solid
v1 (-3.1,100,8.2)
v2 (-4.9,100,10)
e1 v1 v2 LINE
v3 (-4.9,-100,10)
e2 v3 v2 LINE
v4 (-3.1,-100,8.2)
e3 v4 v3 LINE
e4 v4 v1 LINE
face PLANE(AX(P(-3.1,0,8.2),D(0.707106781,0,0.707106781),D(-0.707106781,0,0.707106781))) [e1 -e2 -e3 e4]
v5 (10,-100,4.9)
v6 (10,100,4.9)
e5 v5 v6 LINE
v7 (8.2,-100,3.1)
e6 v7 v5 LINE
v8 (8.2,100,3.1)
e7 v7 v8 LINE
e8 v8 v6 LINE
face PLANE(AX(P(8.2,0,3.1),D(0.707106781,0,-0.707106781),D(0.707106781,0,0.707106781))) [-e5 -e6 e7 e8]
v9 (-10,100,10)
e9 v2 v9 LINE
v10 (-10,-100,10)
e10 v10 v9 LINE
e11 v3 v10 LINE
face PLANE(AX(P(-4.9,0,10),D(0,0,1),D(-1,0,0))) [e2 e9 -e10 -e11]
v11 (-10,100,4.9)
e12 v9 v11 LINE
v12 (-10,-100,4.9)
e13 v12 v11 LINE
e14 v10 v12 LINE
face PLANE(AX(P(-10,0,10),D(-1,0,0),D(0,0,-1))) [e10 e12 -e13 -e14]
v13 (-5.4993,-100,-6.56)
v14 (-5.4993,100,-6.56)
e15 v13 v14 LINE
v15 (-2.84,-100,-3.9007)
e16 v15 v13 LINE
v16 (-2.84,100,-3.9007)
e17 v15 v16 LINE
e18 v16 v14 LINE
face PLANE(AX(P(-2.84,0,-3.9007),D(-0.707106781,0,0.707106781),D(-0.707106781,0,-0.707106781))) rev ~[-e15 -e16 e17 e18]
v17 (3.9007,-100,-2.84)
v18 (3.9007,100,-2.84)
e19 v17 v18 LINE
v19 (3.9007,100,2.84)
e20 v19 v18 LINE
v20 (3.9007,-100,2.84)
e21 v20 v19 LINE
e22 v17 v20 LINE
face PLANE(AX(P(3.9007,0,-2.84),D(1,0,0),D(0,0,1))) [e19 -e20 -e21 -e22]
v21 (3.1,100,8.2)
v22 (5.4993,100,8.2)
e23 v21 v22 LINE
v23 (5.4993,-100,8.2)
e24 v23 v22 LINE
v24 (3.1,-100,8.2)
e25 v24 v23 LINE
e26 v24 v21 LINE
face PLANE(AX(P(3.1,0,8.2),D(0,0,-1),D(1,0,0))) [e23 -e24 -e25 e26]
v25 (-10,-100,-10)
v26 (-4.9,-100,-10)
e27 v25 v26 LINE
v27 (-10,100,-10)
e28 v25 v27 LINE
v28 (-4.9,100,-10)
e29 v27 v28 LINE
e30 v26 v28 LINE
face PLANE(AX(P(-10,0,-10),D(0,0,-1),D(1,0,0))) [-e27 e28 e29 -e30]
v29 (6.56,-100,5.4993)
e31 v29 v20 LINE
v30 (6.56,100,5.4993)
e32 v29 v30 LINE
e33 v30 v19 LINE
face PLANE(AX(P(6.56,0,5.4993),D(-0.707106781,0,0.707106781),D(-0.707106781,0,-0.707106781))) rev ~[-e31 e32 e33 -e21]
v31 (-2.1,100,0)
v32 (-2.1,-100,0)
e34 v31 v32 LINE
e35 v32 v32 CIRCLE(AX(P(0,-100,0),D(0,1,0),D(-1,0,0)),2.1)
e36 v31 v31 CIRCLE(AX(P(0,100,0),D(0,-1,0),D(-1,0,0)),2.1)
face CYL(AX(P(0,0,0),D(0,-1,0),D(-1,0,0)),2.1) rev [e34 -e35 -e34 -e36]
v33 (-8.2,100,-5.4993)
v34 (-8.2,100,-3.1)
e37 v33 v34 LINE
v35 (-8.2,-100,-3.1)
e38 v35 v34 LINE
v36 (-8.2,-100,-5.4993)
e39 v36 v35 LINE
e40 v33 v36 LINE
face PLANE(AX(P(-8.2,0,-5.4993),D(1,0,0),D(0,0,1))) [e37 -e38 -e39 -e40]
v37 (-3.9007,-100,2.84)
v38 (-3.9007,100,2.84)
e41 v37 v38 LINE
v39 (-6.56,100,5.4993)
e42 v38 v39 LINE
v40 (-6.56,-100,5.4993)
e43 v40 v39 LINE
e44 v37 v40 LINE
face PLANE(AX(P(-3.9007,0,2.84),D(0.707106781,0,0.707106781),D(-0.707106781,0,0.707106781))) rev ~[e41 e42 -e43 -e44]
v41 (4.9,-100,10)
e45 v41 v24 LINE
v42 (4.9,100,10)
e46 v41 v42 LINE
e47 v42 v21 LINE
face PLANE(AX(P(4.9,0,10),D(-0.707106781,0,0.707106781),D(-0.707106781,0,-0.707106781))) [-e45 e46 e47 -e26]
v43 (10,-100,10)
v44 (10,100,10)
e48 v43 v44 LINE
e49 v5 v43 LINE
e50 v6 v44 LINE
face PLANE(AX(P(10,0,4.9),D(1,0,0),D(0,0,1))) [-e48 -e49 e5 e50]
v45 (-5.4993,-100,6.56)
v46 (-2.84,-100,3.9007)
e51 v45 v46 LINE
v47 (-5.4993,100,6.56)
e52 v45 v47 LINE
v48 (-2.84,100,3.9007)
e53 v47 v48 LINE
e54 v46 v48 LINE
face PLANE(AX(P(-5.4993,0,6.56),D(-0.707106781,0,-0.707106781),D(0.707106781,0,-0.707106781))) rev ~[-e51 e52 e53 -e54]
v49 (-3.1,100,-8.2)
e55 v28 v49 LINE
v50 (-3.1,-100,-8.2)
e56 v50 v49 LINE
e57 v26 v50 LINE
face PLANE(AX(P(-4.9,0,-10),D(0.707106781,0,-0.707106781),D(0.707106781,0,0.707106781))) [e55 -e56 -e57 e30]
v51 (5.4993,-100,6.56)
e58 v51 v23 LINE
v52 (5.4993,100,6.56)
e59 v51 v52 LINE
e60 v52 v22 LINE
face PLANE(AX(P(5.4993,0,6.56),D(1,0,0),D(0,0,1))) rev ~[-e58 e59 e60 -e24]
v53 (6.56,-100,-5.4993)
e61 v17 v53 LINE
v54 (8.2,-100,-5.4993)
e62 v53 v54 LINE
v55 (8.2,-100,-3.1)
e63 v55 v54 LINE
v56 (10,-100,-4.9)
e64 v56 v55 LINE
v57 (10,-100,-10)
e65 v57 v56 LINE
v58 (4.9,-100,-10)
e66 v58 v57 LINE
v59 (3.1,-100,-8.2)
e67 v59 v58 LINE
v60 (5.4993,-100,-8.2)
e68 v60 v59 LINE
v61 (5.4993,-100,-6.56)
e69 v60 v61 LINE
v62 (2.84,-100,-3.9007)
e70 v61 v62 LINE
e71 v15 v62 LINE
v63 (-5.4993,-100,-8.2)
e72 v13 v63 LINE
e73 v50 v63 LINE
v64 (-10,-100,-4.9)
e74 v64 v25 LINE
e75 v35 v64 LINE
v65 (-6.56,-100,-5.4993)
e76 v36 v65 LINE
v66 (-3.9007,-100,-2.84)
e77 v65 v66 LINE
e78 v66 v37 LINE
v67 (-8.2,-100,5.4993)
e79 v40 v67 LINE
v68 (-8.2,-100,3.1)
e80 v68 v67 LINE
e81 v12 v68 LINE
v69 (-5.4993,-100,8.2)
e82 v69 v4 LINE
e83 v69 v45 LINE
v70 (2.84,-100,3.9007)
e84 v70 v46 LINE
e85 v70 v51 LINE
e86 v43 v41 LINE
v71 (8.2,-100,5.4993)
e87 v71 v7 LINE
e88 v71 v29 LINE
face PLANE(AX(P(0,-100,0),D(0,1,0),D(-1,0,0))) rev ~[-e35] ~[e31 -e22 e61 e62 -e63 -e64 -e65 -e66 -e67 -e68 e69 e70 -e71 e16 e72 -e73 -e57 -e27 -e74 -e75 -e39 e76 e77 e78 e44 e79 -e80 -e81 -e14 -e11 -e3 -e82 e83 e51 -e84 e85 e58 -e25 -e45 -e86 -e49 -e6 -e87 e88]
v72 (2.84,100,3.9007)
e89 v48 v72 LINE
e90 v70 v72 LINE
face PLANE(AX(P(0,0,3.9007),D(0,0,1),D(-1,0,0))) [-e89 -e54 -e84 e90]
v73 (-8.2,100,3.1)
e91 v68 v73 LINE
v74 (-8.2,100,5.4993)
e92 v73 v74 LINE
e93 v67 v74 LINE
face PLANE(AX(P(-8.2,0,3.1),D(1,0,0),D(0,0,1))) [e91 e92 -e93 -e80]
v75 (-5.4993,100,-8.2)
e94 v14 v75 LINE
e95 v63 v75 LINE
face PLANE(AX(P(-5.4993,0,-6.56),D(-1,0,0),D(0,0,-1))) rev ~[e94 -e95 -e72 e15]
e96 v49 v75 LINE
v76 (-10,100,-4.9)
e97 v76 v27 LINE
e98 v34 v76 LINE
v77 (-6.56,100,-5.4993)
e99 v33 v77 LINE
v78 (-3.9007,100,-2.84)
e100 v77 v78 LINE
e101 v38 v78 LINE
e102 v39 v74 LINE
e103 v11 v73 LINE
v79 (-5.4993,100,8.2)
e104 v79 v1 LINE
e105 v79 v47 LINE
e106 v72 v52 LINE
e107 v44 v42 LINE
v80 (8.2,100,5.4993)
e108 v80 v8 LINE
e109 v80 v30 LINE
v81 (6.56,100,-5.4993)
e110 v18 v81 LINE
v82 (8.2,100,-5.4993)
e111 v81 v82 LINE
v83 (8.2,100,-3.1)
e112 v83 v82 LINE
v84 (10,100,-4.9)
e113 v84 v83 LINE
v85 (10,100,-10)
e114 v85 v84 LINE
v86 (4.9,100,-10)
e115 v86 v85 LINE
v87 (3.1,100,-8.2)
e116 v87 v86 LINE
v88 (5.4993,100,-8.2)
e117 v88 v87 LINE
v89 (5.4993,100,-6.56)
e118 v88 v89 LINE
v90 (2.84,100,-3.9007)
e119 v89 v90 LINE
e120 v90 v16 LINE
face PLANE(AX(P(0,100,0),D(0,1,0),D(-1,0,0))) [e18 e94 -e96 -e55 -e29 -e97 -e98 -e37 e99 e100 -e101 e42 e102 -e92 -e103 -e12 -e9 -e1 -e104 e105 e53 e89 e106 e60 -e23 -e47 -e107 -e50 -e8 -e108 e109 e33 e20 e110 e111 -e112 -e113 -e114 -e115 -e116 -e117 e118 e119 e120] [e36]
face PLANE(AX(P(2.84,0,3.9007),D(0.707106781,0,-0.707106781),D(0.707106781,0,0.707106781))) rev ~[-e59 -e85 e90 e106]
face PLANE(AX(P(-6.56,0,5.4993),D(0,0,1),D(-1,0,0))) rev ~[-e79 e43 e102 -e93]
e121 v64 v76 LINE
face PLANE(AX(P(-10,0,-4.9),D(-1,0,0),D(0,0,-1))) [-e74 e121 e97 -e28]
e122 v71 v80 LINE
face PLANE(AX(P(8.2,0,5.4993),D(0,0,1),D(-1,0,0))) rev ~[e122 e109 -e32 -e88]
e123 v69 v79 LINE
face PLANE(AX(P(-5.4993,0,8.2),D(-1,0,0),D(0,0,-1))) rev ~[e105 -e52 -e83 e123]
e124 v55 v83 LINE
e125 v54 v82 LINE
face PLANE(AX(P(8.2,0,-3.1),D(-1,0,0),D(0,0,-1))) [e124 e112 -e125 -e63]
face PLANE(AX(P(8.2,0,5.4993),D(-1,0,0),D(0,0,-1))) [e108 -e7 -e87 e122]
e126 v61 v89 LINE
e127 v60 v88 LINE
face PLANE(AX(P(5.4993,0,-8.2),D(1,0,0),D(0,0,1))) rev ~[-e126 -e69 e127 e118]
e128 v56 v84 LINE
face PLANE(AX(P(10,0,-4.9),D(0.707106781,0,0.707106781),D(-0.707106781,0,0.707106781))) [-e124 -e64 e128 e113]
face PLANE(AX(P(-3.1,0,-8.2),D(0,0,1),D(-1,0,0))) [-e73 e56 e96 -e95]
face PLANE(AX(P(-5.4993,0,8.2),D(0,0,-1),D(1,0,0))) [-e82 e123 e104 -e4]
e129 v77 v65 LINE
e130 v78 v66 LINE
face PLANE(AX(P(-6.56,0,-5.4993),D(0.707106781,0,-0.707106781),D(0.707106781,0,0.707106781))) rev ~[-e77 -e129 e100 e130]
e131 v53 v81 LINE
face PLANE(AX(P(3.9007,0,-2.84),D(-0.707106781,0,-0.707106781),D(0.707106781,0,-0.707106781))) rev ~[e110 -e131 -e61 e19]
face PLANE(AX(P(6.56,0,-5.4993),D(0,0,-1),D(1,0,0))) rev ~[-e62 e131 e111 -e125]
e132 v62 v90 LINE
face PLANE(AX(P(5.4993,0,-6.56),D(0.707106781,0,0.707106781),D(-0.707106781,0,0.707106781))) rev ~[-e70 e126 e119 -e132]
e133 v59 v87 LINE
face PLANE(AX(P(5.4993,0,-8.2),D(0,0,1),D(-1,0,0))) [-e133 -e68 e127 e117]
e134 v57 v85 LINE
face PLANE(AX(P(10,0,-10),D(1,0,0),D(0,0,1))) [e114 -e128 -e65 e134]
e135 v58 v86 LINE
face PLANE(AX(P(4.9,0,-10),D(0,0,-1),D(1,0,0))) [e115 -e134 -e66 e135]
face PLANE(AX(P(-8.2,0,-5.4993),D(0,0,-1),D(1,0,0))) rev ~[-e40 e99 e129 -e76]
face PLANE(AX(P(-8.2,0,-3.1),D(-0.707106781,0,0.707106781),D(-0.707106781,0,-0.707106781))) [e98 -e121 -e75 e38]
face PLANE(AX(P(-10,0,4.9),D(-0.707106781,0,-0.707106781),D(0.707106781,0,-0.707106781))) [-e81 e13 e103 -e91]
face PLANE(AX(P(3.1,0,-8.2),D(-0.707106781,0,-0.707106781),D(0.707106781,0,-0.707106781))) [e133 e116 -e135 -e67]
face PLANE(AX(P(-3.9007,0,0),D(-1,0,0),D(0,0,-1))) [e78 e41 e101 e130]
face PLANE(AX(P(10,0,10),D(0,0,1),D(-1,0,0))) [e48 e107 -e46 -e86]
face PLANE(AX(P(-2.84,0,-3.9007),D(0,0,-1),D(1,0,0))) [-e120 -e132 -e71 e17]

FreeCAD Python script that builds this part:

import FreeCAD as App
import Part
import Sketcher

V = App.Vector
Q = App.Units.Quantity

doc = App.newDocument("Part")
body = doc.addObject("PartDesign::Body", "Body")

sketch1 = doc.addObject("Sketcher::SketchObject", "Sketch")
body.addObject(sketch1)
sketch1.AttachmentSupport = (doc.XZ_Plane, [""])
sketch1.MapMode = "FlatFace"
sketch1.addGeometry(Part.LineSegment(V(-3.9, -2.8, 0), V(-3.9, 2.8, 0)), False)
sketch1.addGeometry(Part.LineSegment(V(-3.9, 2.8, 0), V(-6.6, 5.5, 0)), False)
sketch1.addGeometry(Part.LineSegment(V(-6.6, 5.5, 0), V(-8.2, 5.5, 0)), False)
sketch1.addGeometry(Part.LineSegment(V(-8.2, 5.5, 0), V(-8.2, 3.1, 0)), False)
sketch1.addGeometry(Part.LineSegment(V(-8.2, 3.1, 0), V(-10, 4.9, 0)), False)
sketch1.addGeometry(Part.LineSegment(V(-10, 4.9, 0), V(-10, 10, 0)), False)
sketch1.addGeometry(Part.LineSegment(V(-10, 10, 0), V(-4.9, 10, 0)), False)
sketch1.addGeometry(Part.LineSegment(V(-4.9, 10, 0), V(-3.1, 8.2, 0)), False)
sketch1.addGeometry(Part.LineSegment(V(-3.1, 8.2, 0), V(-5.5, 8.2, 0)), False)
sketch1.addGeometry(Part.LineSegment(V(-5.5, 8.2, 0), V(-5.5, 6.6, 0)), False)
sketch1.addGeometry(Part.LineSegment(V(-5.5, 6.6, 0), V(-2.8, 3.9, 0)), False)
sketch1.addGeometry(Part.LineSegment(V(-2.8, 3.9, 0), V(2.8, 3.9, 0)), False)
sketch1.addGeometry(Part.LineSegment(V(2.8, 3.9, 0), V(5.5, 6.6, 0)), False)
sketch1.addGeometry(Part.LineSegment(V(5.5, 6.6, 0), V(5.5, 8.2, 0)), False)
sketch1.addGeometry(Part.LineSegment(V(5.5, 8.2, 0), V(3.1, 8.2, 0)), False)
sketch1.addGeometry(Part.LineSegment(V(3.1, 8.2, 0), V(4.9, 10, 0)), False)
sketch1.addGeometry(Part.LineSegment(V(4.9, 10, 0), V(10, 10, 0)), False)
sketch1.addGeometry(Part.LineSegment(V(10, 10, 0), V(10, 4.9, 0)), False)
sketch1.addGeometry(Part.LineSegment(V(10, 4.9, 0), V(8.2, 3.1, 0)), False)
sketch1.addGeometry(Part.LineSegment(V(8.2, 3.1, 0), V(8.2, 5.5, 0)), False)
sketch1.addGeometry(Part.LineSegment(V(8.2, 5.5, 0), V(6.6, 5.5, 0)), False)
sketch1.addGeometry(Part.LineSegment(V(6.6, 5.5, 0), V(3.9, 2.8, 0)), False)
sketch1.addGeometry(Part.LineSegment(V(3.9, 2.8, 0), V(3.9, -2.8, 0)), False)
sketch1.addGeometry(Part.LineSegment(V(3.9, -2.8, 0), V(6.6, -5.5, 0)), False)
sketch1.addGeometry(Part.LineSegment(V(6.6, -5.5, 0), V(8.2, -5.5, 0)), False)
sketch1.addGeometry(Part.LineSegment(V(8.2, -5.5, 0), V(8.2, -3.1, 0)), False)
sketch1.addGeometry(Part.LineSegment(V(8.2, -3.1, 0), V(10, -4.9, 0)), False)
sketch1.addGeometry(Part.LineSegment(V(10, -4.9, 0), V(10, -10, 0)), False)
sketch1.addGeometry(Part.LineSegment(V(10, -10, 0), V(4.9, -10, 0)), False)
sketch1.addGeometry(Part.LineSegment(V(4.9, -10, 0), V(3.1, -8.2, 0)), False)
sketch1.addGeometry(Part.LineSegment(V(3.1, -8.2, 0), V(5.5, -8.2, 0)), False)
sketch1.addGeometry(Part.LineSegment(V(5.5, -8.2, 0), V(5.5, -6.6, 0)), False)
sketch1.addGeometry(Part.LineSegment(V(5.5, -6.6, 0), V(2.8, -3.9, 0)), False)
sketch1.addGeometry(Part.LineSegment(V(2.8, -3.9, 0), V(-2.8, -3.9, 0)), False)
sketch1.addGeometry(Part.LineSegment(V(-2.8, -3.9, 0), V(-5.5, -6.6, 0)), False)
sketch1.addGeometry(Part.LineSegment(V(-5.5, -6.6, 0), V(-5.5, -8.2, 0)), False)
sketch1.addGeometry(Part.LineSegment(V(-5.5, -8.2, 0), V(-3.1, -8.2, 0)), False)
sketch1.addGeometry(Part.LineSegment(V(-3.1, -8.2, 0), V(-4.9, -10, 0)), False)
sketch1.addGeometry(Part.LineSegment(V(-4.9, -10, 0), V(-10, -10, 0)), False)
sketch1.addGeometry(Part.LineSegment(V(-10, -10, 0), V(-10, -4.9, 0)), False)
sketch1.addGeometry(Part.LineSegment(V(-10, -4.9, 0), V(-8.2, -3.1, 0)), False)
sketch1.addGeometry(Part.LineSegment(V(-8.2, -3.1, 0), V(-8.2, -5.5, 0)), False)
sketch1.addGeometry(Part.LineSegment(V(-8.2, -5.5, 0), V(-6.6, -5.5, 0)), False)
sketch1.addGeometry(Part.LineSegment(V(-6.6, -5.5, 0), V(-3.9, -2.8, 0)), False)
sketch1.addGeometry(Part.Circle(V(0, 0, 0), V(0, 0, 1), 2.1), False)
sketch1.addConstraint(Sketcher.Constraint("Coincident", 0, 2, 1, 1))
sketch1.addConstraint(Sketcher.Constraint("Coincident", 1, 2, 2, 1))
sketch1.addConstraint(Sketcher.Constraint("Coincident", 2, 2, 3, 1))
sketch1.addConstraint(Sketcher.Constraint("Coincident", 3, 2, 4, 1))
sketch1.addConstraint(Sketcher.Constraint("Coincident", 4, 2, 5, 1))
sketch1.addConstraint(Sketcher.Constraint("Coincident", 5, 2, 6, 1))
sketch1.addConstraint(Sketcher.Constraint("Coincident", 6, 2, 7, 1))
sketch1.addConstraint(Sketcher.Constraint("Coincident", 7, 2, 8, 1))
sketch1.addConstraint(Sketcher.Constraint("Coincident", 8, 2, 9, 1))
sketch1.addConstraint(Sketcher.Constraint("Coincident", 9, 2, 10, 1))
sketch1.addConstraint(Sketcher.Constraint("Coincident", 10, 2, 11, 1))
sketch1.addConstraint(Sketcher.Constraint("Coincident", 11, 2, 12, 1))
sketch1.addConstraint(Sketcher.Constraint("Coincident", 12, 2, 13, 1))
sketch1.addConstraint(Sketcher.Constraint("Coincident", 13, 2, 14, 1))
sketch1.addConstraint(Sketcher.Constraint("Coincident", 14, 2, 15, 1))
sketch1.addConstraint(Sketcher.Constraint("Coincident", 15, 2, 16, 1))
sketch1.addConstraint(Sketcher.Constraint("Coincident", 16, 2, 17, 1))
sketch1.addConstraint(Sketcher.Constraint("Coincident", 17, 2, 18, 1))
sketch1.addConstraint(Sketcher.Constraint("Coincident", 18, 2, 19, 1))
sketch1.addConstraint(Sketcher.Constraint("Coincident", 19, 2, 20, 1))
sketch1.addConstraint(Sketcher.Constraint("Coincident", 20, 2, 21, 1))
sketch1.addConstraint(Sketcher.Constraint("Coincident", 21, 2, 22, 1))
sketch1.addConstraint(Sketcher.Constraint("Coincident", 22, 2, 23, 1))
sketch1.addConstraint(Sketcher.Constraint("Coincident", 23, 2, 24, 1))
sketch1.addConstraint(Sketcher.Constraint("Coincident", 24, 2, 25, 1))
sketch1.addConstraint(Sketcher.Constraint("Coincident", 25, 2, 26, 1))
sketch1.addConstraint(Sketcher.Constraint("Coincident", 26, 2, 27, 1))
sketch1.addConstraint(Sketcher.Constraint("Coincident", 27, 2, 28, 1))
sketch1.addConstraint(Sketcher.Constraint("Coincident", 28, 2, 29, 1))
sketch1.addConstraint(Sketcher.Constraint("Coincident", 29, 2, 30, 1))
sketch1.addConstraint(Sketcher.Constraint("Coincident", 30, 2, 31, 1))
sketch1.addConstraint(Sketcher.Constraint("Coincident", 31, 2, 32, 1))
sketch1.addConstraint(Sketcher.Constraint("Coincident", 32, 2, 33, 1))
sketch1.addConstraint(Sketcher.Constraint("Coincident", 33, 2, 34, 1))
sketch1.addConstraint(Sketcher.Constraint("Coincident", 34, 2, 35, 1))
sketch1.addConstraint(Sketcher.Constraint("Coincident", 35, 2, 36, 1))
sketch1.addConstraint(Sketcher.Constraint("Coincident", 36, 2, 37, 1))
sketch1.addConstraint(Sketcher.Constraint("Coincident", 37, 2, 38, 1))
sketch1.addConstraint(Sketcher.Constraint("Coincident", 38, 2, 39, 1))
sketch1.addConstraint(Sketcher.Constraint("Coincident", 39, 2, 40, 1))
sketch1.addConstraint(Sketcher.Constraint("Coincident", 40, 2, 41, 1))
sketch1.addConstraint(Sketcher.Constraint("Coincident", 41, 2, 42, 1))
sketch1.addConstraint(Sketcher.Constraint("Coincident", 42, 2, 43, 1))
sketch1.addConstraint(Sketcher.Constraint("Coincident", 43, 2, 0, 1))
sketch1.addConstraint(Sketcher.Constraint("Vertical", 0))
sketch1.addConstraint(Sketcher.Constraint("Horizontal", 2))
sketch1.addConstraint(Sketcher.Constraint("Vertical", 3))
sketch1.addConstraint(Sketcher.Constraint("Vertical", 5))
sketch1.addConstraint(Sketcher.Constraint("Horizontal", 6))
sketch1.addConstraint(Sketcher.Constraint("Horizontal", 8))
sketch1.addConstraint(Sketcher.Constraint("Vertical", 9))
sketch1.addConstraint(Sketcher.Constraint("Horizontal", 11))
sketch1.addConstraint(Sketcher.Constraint("Vertical", 13))
sketch1.addConstraint(Sketcher.Constraint("Horizontal", 14))
sketch1.addConstraint(Sketcher.Constraint("Horizontal", 16))
sketch1.addConstraint(Sketcher.Constraint("Vertical", 17))
sketch1.addConstraint(Sketcher.Constraint("Vertical", 19))
sketch1.addConstraint(Sketcher.Constraint("Horizontal", 20))
sketch1.addConstraint(Sketcher.Constraint("Vertical", 22))
sketch1.addConstraint(Sketcher.Constraint("Horizontal", 24))
sketch1.addConstraint(Sketcher.Constraint("Vertical", 25))
sketch1.addConstraint(Sketcher.Constraint("Vertical", 27))
sketch1.addConstraint(Sketcher.Constraint("Horizontal", 28))
sketch1.addConstraint(Sketcher.Constraint("Horizontal", 30))
sketch1.addConstraint(Sketcher.Constraint("Vertical", 31))
sketch1.addConstraint(Sketcher.Constraint("Horizontal", 33))
sketch1.addConstraint(Sketcher.Constraint("Vertical", 35))
sketch1.addConstraint(Sketcher.Constraint("Horizontal", 36))
sketch1.addConstraint(Sketcher.Constraint("Horizontal", 38))
sketch1.addConstraint(Sketcher.Constraint("Vertical", 39))
sketch1.addConstraint(Sketcher.Constraint("Vertical", 41))
sketch1.addConstraint(Sketcher.Constraint("Horizontal", 42))
sketch1.addConstraint(Sketcher.Constraint("Coincident", 44, 3, -1, 1))
sketch1.addConstraint(Sketcher.Constraint("Symmetric", 0, 2, 22, 2, -1, 1))
sketch1.addConstraint(Sketcher.Constraint("Symmetric", 1, 2, 23, 2, -1, 1))
sketch1.addConstraint(Sketcher.Constraint("Symmetric", 3, 2, 25, 2, -1, 1))
sketch1.addConstraint(Sketcher.Constraint("Symmetric", 4, 2, 26, 2, -1, 1))
sketch1.addConstraint(Sketcher.Constraint("Symmetric", 6, 2, 28, 2, -1, 1))
sketch1.addConstraint(Sketcher.Constraint("Symmetric", 7, 2, 29, 2, -1, 1))
sketch1.addConstraint(Sketcher.Constraint("Symmetric", 9, 2, 31, 2, -1, 1))
sketch1.addConstraint(Sketcher.Constraint("Symmetric", 10, 2, 32, 2, -1, 1))
sketch1.addConstraint(Sketcher.Constraint("Symmetric", 12, 2, 34, 2, -1, 1))
sketch1.addConstraint(Sketcher.Constraint("Symmetric", 14, 2, 36, 2, -1, 1))
sketch1.addConstraint(Sketcher.Constraint("Symmetric", 15, 2, 37, 2, -1, 1))
sketch1.addConstraint(Sketcher.Constraint("Symmetric", 17, 2, 39, 2, -1, 1))
sketch1.addConstraint(Sketcher.Constraint("Symmetric", 18, 2, 40, 2, -1, 1))
sketch1.addConstraint(Sketcher.Constraint("Symmetric", 20, 2, 42, 2, -1, 1))
sketch1.addConstraint(Sketcher.Constraint("Symmetric", 9, 2, 12, 2, -2))
sketch1.addConstraint(Sketcher.Constraint("Symmetric", 7, 2, 14, 2, -2))
sketch1.addConstraint(Sketcher.Constraint("Symmetric", 6, 2, 15, 2, -2))
sketch1.addConstraint(Sketcher.Constraint("Symmetric", 4, 2, 17, 2, -2))
sketch1.addConstraint(Sketcher.Constraint("Symmetric", 3, 2, 18, 2, -2))
sketch1.addConstraint(Sketcher.Constraint("Symmetric", 1, 2, 20, 2, -2))
sketch1.addConstraint(Sketcher.Constraint("Parallel", 1, 4))
sketch1.addConstraint(Sketcher.Constraint("Parallel", 4, 7))
sketch1.addConstraint(Sketcher.Constraint("Parallel", 7, 10))
sketch1.addConstraint(Sketcher.Constraint("Perpendicular", 10, 12))
sketch1.addConstraint(Sketcher.Constraint("Parallel", 12, 15))
sketch1.addConstraint(Sketcher.Constraint("Parallel", 18, 21))
sketch1.addConstraint(Sketcher.Constraint("Perpendicular", 32, 34))
sketch1.addConstraint(Sketcher.Constraint("Parallel", 40, 43))
sketch1.addConstraint(Sketcher.Constraint("Equal", 33, 0))
sketch1.addConstraint(Sketcher.Constraint("Equal", 36, 3))
sketch1.addConstraint(Sketcher.Constraint("Equal", 38, 5))
sketch1.addConstraint(Sketcher.Constraint("Equal", 42, 9))
sketch1.addConstraint(Sketcher.Constraint("Equal", 4, 7))
sketch1.addConstraint(Sketcher.Constraint("Equal", 1, 10))
sketch1.addConstraint(Sketcher.Constraint("Diameter", 44, Q("4.2 mm")))
sketch1.addConstraint(Sketcher.Constraint("DistanceX", 4, 2, -1, 1, Q("10 mm")))
sketch1.addConstraint(Sketcher.Constraint("DistanceX", 2, 2, 2, 1, Q("1.64 mm")))
sketch1.addConstraint(Sketcher.Constraint("DistanceY", -1, 1, 3, 2, Q("3.1 mm")))
sketch1.addConstraint(Sketcher.Constraint("DistanceX", 4, 2, 2, 2, Q("1.8 mm")))
sketch1.addConstraint(Sketcher.Constraint("DistanceY", -1, 1, 0, 2, Q("2.84 mm")))
sketch1.addConstraint(Sketcher.Constraint("DistanceX", 8, 2, 8, 1, Q("2.3993 mm")))
pad1 = doc.addObject("PartDesign::Pad", "Pad")
body.addObject(pad1)
pad1.Profile = sketch1
pad1.Length = 200
pad1.Midplane = True

doc.recompute()
